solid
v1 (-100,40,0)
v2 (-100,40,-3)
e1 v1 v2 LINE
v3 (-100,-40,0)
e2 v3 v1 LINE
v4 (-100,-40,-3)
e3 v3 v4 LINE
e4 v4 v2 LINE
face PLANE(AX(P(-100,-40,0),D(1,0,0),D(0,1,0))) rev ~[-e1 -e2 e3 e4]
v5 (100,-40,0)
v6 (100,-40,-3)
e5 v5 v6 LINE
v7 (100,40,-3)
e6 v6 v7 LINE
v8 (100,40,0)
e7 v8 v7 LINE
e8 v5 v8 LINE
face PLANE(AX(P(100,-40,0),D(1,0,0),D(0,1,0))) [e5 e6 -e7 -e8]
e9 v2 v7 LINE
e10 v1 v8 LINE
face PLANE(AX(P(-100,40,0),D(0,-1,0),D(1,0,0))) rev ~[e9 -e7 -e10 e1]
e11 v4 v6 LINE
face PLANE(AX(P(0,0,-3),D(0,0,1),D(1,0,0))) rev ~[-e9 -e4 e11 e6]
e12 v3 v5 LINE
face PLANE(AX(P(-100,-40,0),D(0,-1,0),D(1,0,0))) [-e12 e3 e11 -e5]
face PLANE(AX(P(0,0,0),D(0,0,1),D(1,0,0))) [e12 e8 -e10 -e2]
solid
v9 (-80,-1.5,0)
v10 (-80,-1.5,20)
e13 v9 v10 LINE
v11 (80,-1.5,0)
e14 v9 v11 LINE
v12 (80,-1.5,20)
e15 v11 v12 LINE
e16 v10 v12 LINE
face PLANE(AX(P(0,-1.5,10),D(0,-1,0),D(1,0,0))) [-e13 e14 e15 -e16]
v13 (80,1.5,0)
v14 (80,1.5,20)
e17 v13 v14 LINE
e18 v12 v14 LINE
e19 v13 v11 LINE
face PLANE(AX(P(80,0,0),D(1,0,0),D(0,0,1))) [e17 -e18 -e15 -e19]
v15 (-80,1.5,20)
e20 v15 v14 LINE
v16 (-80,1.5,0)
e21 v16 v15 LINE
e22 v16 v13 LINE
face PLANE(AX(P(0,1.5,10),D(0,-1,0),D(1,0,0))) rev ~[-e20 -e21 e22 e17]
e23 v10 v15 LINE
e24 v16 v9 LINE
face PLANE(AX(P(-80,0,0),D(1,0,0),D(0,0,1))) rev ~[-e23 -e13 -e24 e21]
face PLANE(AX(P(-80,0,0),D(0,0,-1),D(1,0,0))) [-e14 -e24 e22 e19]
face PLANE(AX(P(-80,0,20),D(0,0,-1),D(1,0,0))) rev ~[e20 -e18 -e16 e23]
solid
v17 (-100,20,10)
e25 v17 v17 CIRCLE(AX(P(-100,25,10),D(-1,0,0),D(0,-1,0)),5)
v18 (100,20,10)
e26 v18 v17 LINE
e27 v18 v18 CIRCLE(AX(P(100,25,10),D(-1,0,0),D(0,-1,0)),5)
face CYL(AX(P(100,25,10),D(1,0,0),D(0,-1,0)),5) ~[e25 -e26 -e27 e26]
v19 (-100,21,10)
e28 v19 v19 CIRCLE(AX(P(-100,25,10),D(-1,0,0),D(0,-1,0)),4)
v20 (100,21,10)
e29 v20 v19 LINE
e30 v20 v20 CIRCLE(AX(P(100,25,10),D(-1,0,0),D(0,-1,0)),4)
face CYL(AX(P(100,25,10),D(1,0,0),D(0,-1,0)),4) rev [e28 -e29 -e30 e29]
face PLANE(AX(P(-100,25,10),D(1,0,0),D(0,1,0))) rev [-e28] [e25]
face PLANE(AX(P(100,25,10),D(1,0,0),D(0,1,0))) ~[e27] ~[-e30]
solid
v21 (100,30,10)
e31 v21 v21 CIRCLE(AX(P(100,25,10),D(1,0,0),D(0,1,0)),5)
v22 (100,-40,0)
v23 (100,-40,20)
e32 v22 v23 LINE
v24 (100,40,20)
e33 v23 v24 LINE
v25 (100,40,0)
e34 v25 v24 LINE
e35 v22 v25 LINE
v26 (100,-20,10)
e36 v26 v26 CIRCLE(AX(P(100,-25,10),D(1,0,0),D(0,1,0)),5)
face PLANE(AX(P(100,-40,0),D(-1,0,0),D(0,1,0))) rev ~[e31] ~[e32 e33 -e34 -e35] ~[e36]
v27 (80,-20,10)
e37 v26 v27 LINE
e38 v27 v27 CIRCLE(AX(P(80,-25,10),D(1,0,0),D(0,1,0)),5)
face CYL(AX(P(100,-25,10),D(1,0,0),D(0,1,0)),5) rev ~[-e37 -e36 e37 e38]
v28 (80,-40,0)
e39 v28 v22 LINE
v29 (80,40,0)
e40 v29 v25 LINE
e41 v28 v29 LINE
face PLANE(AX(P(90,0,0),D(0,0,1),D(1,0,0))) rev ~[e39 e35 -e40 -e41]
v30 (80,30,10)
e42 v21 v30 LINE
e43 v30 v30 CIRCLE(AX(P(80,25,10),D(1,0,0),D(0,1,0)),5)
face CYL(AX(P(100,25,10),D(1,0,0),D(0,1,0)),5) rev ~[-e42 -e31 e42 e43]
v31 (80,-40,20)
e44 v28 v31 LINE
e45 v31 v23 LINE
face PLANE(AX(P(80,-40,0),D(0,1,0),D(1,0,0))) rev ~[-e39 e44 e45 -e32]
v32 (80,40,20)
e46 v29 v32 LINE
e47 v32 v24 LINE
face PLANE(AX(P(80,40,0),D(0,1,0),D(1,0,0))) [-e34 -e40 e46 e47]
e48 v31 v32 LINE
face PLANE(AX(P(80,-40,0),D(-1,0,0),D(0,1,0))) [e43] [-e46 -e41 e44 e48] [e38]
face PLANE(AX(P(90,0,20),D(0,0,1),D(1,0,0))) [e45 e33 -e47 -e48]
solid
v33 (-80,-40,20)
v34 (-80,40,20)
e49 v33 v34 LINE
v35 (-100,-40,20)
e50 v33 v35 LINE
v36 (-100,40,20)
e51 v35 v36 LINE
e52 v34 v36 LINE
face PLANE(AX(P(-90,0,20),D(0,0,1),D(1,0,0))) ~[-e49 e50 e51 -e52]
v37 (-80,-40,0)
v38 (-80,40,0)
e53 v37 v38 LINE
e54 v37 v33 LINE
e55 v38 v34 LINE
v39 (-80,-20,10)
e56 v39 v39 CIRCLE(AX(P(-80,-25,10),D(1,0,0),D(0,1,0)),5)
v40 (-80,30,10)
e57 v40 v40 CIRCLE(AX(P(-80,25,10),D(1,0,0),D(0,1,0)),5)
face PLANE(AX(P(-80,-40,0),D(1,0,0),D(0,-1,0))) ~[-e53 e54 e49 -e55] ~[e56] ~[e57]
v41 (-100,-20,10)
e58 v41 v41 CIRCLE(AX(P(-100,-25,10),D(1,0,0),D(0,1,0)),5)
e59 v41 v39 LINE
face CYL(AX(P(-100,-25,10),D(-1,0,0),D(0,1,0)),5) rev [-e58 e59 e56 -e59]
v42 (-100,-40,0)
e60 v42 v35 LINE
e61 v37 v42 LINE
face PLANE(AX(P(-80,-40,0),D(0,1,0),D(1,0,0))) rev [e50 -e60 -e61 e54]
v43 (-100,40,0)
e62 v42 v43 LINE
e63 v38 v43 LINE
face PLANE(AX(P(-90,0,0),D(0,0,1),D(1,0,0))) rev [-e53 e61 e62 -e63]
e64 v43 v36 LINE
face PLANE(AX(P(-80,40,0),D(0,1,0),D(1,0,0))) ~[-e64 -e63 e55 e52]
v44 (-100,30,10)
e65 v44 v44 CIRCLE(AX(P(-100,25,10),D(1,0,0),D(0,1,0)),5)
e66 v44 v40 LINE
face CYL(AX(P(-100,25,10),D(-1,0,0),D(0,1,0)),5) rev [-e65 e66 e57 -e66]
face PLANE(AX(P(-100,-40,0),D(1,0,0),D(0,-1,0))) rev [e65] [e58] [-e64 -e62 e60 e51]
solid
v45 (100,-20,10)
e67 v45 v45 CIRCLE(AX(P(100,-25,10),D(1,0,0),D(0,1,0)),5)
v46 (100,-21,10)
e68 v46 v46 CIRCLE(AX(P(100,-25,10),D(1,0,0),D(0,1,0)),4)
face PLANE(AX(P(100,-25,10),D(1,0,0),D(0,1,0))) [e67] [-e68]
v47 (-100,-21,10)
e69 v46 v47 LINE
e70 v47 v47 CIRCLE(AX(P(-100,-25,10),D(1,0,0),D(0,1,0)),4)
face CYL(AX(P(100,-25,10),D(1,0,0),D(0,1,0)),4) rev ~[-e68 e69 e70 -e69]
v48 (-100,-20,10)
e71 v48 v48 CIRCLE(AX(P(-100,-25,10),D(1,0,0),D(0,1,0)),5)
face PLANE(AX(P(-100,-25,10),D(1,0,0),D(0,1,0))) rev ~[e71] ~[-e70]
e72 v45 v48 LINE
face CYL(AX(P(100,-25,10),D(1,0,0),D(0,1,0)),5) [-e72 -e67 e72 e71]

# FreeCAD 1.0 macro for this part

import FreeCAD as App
import Part
import Sketcher

doc = App.newDocument("Part")
body = doc.addObject("PartDesign::Body", "Body")

sketch1 = body.newObject("Sketcher::SketchObject", "Sketch")
sketch1.AttachmentSupport = (doc.getObject("XY_Plane"), [""])
sketch1.MapMode = "FlatFace"
sketch1.addGeometry(Part.LineSegment(App.Vector(-100, 40, 0), App.Vector(-100, -40, 0)), False)
sketch1.addGeometry(Part.LineSegment(App.Vector(-100, -40, 0), App.Vector(100, -40, 0)), False)
sketch1.addGeometry(Part.LineSegment(App.Vector(100, -40, 0), App.Vector(100, 40, 0)), False)
sketch1.addGeometry(Part.LineSegment(App.Vector(100, 40, 0), App.Vector(-100, 40, 0)), False)
sketch1.addConstraint(Sketcher.Constraint("Coincident", 0, 2, 1, 1))
sketch1.addConstraint(Sketcher.Constraint("Coincident", 1, 2, 2, 1))
sketch1.addConstraint(Sketcher.Constraint("Coincident", 2, 2, 3, 1))
sketch1.addConstraint(Sketcher.Constraint("Coincident", 3, 2, 0, 1))
sketch1.addConstraint(Sketcher.Constraint("Vertical", 0))
sketch1.addConstraint(Sketcher.Constraint("Horizontal", 1))
sketch1.addConstraint(Sketcher.Constraint("Vertical", 2))
sketch1.addConstraint(Sketcher.Constraint("Horizontal", 3))
sketch1.addConstraint(Sketcher.Constraint("Symmetric", 0, 2, 2, 2, -1, 1))
sketch1.addConstraint(Sketcher.Constraint("DistanceX", 1, 1, 1, 2, 200.0))
sketch1.addConstraint(Sketcher.Constraint("DistanceY", 0, 2, 0, 1, 80.0))
pad1 = body.newObject("PartDesign::Pad", "Pad")
pad1.Profile = sketch1
pad1.Length = 3
pad1.Reversed = True
body2 = doc.addObject("PartDesign::Body", "Body001")

sketch2 = body2.newObject("Sketcher::SketchObject", "Sketch001")
sketch2.AttachmentSupport = (doc.getObject("XY_Plane001"), [""])
sketch2.MapMode = "FlatFace"
sketch2.addGeometry(Part.LineSegment(App.Vector(80, 40, 0), App.Vector(80, -40, 0)), False)
sketch2.addGeometry(Part.LineSegment(App.Vector(80, -40, 0), App.Vector(100, -40, 0)), False)
sketch2.addGeometry(Part.LineSegment(App.Vector(100, -40, 0), App.Vector(100, 40, 0)), False)
sketch2.addGeometry(Part.LineSegment(App.Vector(100, 40, 0), App.Vector(80, 40, 0)), False)
sketch2.addConstraint(Sketcher.Constraint("Coincident", 0, 2, 1, 1))
sketch2.addConstraint(Sketcher.Constraint("Coincident", 1, 2, 2, 1))
sketch2.addConstraint(Sketcher.Constraint("Coincident", 2, 2, 3, 1))
sketch2.addConstraint(Sketcher.Constraint("Coincident", 3, 2, 0, 1))
sketch2.addConstraint(Sketcher.Constraint("Vertical", 0))
sketch2.addConstraint(Sketcher.Constraint("Horizontal", 1))
sketch2.addConstraint(Sketcher.Constraint("Vertical", 2))
sketch2.addConstraint(Sketcher.Constraint("Horizontal", 3))
sketch2.addConstraint(Sketcher.Constraint("DistanceX", 1, 1, 1, 2, 20.0))
sketch2.addConstraint(Sketcher.Constraint("DistanceY", 0, 2, 0, 1, 80.0))
sketch2.addConstraint(Sketcher.Constraint("DistanceX", -1, 1, 0, 2, 80.0))
sketch2.addConstraint(Sketcher.Constraint("DistanceY", 0, 2, -1, 1, 40.0))
pad2 = body2.newObject("PartDesign::Pad", "Pad001")
pad2.Profile = sketch2
pad2.Length = 20

sketch3 = body2.newObject("Sketcher::SketchObject", "Sketch002")
sketch3.AttachmentSupport = (doc.getObject("YZ_Plane001"), [""])
sketch3.MapMode = "FlatFace"
sketch3.AttachmentOffset = App.Placement(App.Vector(0, 0, 100), App.Rotation())
sketch3.addGeometry(Part.Circle(App.Vector(-25, 10, 0), App.Vector(0, 0, 1), 5), False)
sketch3.addGeometry(Part.Circle(App.Vector(25, 10, 0), App.Vector(0, 0, 1), 5), False)
sketch3.addConstraint(Sketcher.Constraint("Equal", 0, 1))
sketch3.addConstraint(Sketcher.Constraint("Symmetric", 0, 3, 1, 3, -2))
sketch3.addConstraint(Sketcher.Constraint("Diameter", 0, 10.0))
sketch3.addConstraint(Sketcher.Constraint("DistanceX", 0, 3, -1, 1, 25.0))
sketch3.addConstraint(Sketcher.Constraint("DistanceY", -1, 1, 0, 3, 10.0))
pocket1 = body2.newObject("PartDesign::Pocket", "Pocket")
pocket1.Profile = sketch3
pocket1.Length = 25
body3 = doc.addObject("PartDesign::Body", "Body002")
doc.recompute()

mirroring = doc.addObject("Part::Mirroring", "Mirroring")
mirroring.Source = body2
mirroring.Base = App.Vector(0, 0, 0)
mirroring.Normal = App.Vector(1, 0, 0)
body3.BaseFeature = mirroring
doc.recompute()
body4 = doc.addObject("PartDesign::Body", "Body003")

sketch4 = body4.newObject("Sketcher::SketchObject", "Sketch003")
sketch4.AttachmentSupport = (doc.getObject("XZ_Plane003"), [""])
sketch4.MapMode = "FlatFace"
sketch4.addGeometry(Part.LineSegment(App.Vector(-80, 20, 0), App.Vector(-80, 0, 0)), False)
sketch4.addGeometry(Part.LineSegment(App.Vector(-80, 0, 0), App.Vector(80, 0, 0)), False)
sketch4.addGeometry(Part.LineSegment(App.Vector(80, 0, 0), App.Vector(80, 20, 0)), False)
sketch4.addGeometry(Part.LineSegment(App.Vector(80, 20, 0), App.Vector(-80, 20, 0)), False)
sketch4.addConstraint(Sketcher.Constraint("Coincident", 0, 2, 1, 1))
sketch4.addConstraint(Sketcher.Constraint("Coincident", 1, 2, 2, 1))
sketch4.addConstraint(Sketcher.Constraint("Coincident", 2, 2, 3, 1))
sketch4.addConstraint(Sketcher.Constraint("Coincident", 3, 2, 0, 1))
sketch4.addConstraint(Sketcher.Constraint("Vertical", 0))
sketch4.addConstraint(Sketcher.Constraint("Horizontal", 1))
sketch4.addConstraint(Sketcher.Constraint("Vertical", 2))
sketch4.addConstraint(Sketcher.Constraint("Horizontal", 3))
sketch4.addConstraint(Sketcher.Constraint("Symmetric", 0, 2, 1, 2, -1, 1))
sketch4.addConstraint(Sketcher.Constraint("DistanceX", 1, 1, 1, 2, 160.0))
sketch4.addConstraint(Sketcher.Constraint("DistanceY", 0, 2, 0, 1, 20.0))
pad3 = body4.newObject("PartDesign::Pad", "Pad002")
pad3.Profile = sketch4
pad3.Length = 3
pad3.Midplane = True
body5 = doc.addObject("PartDesign::Body", "Body004")

sketch5 = body5.newObject("Sketcher::SketchObject", "Sketch004")
sketch5.AttachmentSupport = (doc.getObject("YZ_Plane004"), [""])
sketch5.MapMode = "FlatFace"
sketch5.AttachmentOffset = App.Placement(App.Vector(0, 0, 100), App.Rotation())
sketch5.addGeometry(Part.Circle(App.Vector(-25, 10, 0), App.Vector(0, 0, 1), 5), False)
sketch5.addGeometry(Part.Circle(App.Vector(-25, 10, 0), App.Vector(0, 0, 1), 4), False)
sketch5.addConstraint(Sketcher.Constraint("Coincident", 1, 3, 0, 3))
sketch5.addConstraint(Sketcher.Constraint("Diameter", 0, 10.0))
sketch5.addConstraint(Sketcher.Constraint("Diameter", 1, 8.0))
sketch5.addConstraint(Sketcher.Constraint("DistanceX", 0, 3, -1, 1, 25.0))
sketch5.addConstraint(Sketcher.Constraint("DistanceY", -1, 1, 0, 3, 10.0))
pad4 = body5.newObject("PartDesign::Pad", "Pad003")
pad4.Profile = sketch5
pad4.Length = 200
pad4.Reversed = True
body6 = doc.addObject("PartDesign::Body", "Body005")
doc.recompute()

mirroring2 = doc.addObject("Part::Mirroring", "Mirroring001")
mirroring2.Source = body5
mirroring2.Base = App.Vector(0, 0, 0)
mirroring2.Normal = App.Vector(0, -1, 0)
body6.BaseFeature = mirroring2
doc.recompute()
mirroring.Visibility = False
mirroring2.Visibility = False

doc.recompute()
